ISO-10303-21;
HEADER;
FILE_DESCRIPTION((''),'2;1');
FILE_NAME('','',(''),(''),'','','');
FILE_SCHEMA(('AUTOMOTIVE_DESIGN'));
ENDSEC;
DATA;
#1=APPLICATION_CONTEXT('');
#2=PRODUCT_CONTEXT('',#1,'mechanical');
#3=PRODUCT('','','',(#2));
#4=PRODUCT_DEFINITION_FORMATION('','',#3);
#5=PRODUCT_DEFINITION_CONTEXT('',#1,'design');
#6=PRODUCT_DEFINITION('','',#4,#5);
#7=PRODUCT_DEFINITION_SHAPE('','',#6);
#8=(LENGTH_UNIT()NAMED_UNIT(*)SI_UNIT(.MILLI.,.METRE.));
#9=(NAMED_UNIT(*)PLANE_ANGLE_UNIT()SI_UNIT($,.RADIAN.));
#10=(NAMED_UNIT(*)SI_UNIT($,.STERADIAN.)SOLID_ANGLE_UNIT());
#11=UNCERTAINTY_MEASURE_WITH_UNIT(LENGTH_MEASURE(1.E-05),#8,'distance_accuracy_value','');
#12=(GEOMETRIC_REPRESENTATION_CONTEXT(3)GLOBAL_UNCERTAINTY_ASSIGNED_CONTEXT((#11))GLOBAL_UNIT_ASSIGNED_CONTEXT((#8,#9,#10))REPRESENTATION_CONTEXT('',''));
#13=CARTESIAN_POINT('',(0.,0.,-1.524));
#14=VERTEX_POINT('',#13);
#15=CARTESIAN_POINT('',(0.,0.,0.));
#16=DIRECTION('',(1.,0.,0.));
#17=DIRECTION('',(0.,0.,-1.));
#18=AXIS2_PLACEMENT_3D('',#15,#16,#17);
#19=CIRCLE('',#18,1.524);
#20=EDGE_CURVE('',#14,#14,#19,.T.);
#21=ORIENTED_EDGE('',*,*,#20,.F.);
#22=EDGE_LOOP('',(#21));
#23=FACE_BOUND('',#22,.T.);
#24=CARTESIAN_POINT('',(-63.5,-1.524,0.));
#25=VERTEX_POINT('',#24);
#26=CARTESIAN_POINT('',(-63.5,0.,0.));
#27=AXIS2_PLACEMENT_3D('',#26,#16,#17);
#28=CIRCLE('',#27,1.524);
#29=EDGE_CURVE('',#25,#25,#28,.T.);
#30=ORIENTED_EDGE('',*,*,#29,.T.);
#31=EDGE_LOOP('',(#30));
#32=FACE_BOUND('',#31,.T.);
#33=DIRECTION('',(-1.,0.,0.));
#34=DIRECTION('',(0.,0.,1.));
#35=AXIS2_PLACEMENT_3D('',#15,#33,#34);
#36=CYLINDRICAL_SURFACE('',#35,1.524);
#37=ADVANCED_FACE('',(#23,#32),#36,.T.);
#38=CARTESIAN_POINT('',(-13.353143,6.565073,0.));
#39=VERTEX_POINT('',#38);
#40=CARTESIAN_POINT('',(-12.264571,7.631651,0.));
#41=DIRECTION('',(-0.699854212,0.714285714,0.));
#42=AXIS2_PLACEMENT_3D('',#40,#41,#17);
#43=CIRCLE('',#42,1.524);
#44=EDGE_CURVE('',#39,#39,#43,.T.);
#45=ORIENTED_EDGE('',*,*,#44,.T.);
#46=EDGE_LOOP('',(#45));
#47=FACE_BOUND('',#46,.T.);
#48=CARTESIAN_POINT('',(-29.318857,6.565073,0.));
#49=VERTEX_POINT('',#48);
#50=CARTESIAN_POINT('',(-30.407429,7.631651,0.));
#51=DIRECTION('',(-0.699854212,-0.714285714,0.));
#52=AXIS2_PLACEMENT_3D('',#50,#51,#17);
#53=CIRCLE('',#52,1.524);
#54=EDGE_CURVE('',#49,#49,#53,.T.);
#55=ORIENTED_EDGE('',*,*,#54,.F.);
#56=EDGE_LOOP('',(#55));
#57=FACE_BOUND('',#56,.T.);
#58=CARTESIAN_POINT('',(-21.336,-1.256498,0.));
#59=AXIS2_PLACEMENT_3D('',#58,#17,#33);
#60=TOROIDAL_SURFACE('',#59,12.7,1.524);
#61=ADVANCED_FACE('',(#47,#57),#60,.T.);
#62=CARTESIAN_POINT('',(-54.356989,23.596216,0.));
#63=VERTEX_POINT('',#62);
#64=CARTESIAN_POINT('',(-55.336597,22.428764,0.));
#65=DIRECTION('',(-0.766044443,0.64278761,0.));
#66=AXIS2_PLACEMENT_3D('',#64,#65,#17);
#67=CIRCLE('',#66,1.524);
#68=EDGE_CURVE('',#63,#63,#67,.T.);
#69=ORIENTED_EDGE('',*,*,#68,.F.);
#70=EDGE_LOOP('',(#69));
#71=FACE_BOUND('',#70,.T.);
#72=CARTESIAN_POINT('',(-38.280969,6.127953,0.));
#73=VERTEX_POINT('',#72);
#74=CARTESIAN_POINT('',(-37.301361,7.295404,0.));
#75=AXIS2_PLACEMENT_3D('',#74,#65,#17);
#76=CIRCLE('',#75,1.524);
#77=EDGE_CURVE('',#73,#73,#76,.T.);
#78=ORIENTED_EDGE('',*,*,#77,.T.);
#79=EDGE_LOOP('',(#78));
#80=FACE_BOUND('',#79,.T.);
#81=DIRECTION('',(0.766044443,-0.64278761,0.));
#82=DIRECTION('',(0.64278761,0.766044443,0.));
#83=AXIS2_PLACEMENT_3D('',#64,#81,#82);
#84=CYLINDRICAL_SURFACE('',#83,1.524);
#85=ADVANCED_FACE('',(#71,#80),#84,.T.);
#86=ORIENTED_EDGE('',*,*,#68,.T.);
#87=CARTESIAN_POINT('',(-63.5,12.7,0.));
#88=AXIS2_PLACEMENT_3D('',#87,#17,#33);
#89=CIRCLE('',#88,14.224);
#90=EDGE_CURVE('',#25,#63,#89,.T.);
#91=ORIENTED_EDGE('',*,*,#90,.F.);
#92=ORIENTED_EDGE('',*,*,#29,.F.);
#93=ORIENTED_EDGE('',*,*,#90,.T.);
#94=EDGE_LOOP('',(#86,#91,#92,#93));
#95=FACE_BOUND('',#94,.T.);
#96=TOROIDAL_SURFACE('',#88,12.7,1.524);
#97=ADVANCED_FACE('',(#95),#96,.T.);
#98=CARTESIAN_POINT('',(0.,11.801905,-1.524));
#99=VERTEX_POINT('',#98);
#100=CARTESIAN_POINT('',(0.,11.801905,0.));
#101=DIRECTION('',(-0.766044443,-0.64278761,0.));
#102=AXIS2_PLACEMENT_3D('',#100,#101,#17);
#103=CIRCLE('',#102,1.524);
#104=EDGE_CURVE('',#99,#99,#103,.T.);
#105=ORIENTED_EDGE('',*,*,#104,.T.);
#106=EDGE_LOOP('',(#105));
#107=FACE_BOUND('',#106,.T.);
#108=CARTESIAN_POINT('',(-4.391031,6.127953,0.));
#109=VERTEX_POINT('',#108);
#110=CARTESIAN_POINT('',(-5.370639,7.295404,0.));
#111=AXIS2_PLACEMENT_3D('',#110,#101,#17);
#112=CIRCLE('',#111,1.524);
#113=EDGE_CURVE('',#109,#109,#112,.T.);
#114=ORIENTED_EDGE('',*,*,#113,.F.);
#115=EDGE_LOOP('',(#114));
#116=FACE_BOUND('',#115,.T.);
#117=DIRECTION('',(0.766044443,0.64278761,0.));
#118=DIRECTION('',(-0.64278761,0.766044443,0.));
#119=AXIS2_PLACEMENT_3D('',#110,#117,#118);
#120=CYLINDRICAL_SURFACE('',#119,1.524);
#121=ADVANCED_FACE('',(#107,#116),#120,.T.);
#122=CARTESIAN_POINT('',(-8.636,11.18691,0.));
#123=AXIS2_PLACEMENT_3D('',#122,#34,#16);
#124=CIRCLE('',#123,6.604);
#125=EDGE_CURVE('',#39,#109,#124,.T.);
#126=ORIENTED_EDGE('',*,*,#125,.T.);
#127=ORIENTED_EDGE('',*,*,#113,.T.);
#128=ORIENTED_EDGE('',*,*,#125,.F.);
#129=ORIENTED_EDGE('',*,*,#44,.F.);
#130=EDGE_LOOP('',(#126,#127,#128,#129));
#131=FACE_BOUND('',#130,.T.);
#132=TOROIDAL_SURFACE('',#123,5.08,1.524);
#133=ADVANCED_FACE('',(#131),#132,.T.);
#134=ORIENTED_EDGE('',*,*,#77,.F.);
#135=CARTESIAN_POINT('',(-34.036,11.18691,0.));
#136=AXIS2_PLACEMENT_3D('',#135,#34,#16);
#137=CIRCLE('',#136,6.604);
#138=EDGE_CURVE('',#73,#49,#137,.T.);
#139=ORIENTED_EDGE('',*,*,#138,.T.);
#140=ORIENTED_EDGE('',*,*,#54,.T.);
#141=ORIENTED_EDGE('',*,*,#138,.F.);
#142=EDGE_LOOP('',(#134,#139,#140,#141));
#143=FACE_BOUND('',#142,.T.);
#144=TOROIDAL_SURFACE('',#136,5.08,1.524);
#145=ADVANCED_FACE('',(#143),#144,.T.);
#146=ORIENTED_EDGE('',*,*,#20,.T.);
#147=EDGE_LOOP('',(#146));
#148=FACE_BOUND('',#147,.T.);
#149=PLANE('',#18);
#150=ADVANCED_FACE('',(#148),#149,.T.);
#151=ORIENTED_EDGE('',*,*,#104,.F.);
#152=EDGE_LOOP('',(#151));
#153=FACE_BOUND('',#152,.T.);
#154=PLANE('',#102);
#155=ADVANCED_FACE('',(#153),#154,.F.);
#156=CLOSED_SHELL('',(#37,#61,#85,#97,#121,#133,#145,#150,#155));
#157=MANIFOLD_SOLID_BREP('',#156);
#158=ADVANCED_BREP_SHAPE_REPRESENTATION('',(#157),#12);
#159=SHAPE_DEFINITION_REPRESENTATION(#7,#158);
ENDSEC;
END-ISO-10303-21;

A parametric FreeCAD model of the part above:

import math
import FreeCAD as App
import Part
import Sketcher
from FreeCAD import Vector
Q = App.Units.Quantity

doc = App.newDocument("Part")
body = doc.addObject("PartDesign::Body", "Body")

sketch1 = doc.addObject("Sketcher::SketchObject", "Sketch")
body.addObject(sketch1)
sketch1.AttachmentSupport = (doc.YZ_Plane, [""])
sketch1.MapMode = "FlatFace"
sketch1.addGeometry(Part.Circle(Vector(0, 0, 0), Vector(0, 0, 1), 1.524), False)
sketch1.addConstraint(Sketcher.Constraint("Coincident", 0, 3, -1, 1))
sketch1.addConstraint(Sketcher.Constraint("Diameter", 0, Q("0.12 in")))

sketch2 = doc.addObject("Sketcher::SketchObject", "Sketch001")
body.addObject(sketch2)
sketch2.AttachmentSupport = (doc.XY_Plane, [""])
sketch2.MapMode = "FlatFace"
sketch2.addGeometry(Part.LineSegment(Vector(0, 0, 0), Vector(-63.5, 0, 0)), False)
sketch2.addGeometry(Part.ArcOfCircle(Part.Circle(Vector(-63.5, 12.7, 0), Vector(0, 0, 1), 12.7), math.radians(50), math.radians(270)), False)
sketch2.addGeometry(Part.LineSegment(Vector(-55.336597, 22.428764, 0), Vector(-37.301361, 7.295404, 0)), False)
sketch2.addGeometry(Part.ArcOfCircle(Part.Circle(Vector(-34.036, 11.18691, 0), Vector(0, 0, 1), 5.08), math.radians(-130), math.radians(-44.415309)), False)
sketch2.addGeometry(Part.ArcOfCircle(Part.Circle(Vector(-21.336, -1.256498, 0), Vector(0, 0, 1), 12.7), math.radians(44.415309), math.radians(135.584691)), False)
sketch2.addGeometry(Part.ArcOfCircle(Part.Circle(Vector(-8.636, 11.18691, 0), Vector(0, 0, 1), 5.08), math.radians(-135.584691), math.radians(-50)), False)
sketch2.addGeometry(Part.LineSegment(Vector(-5.370639, 7.295404, 0), Vector(0, 11.801905, 0)), False)
sketch2.addConstraint(Sketcher.Constraint("Tangent", 0, 2, 1, 2))
sketch2.addConstraint(Sketcher.Constraint("Tangent", 1, 1, 2, 1))
sketch2.addConstraint(Sketcher.Constraint("Tangent", 2, 2, 3, 1))
sketch2.addConstraint(Sketcher.Constraint("Tangent", 3, 2, 4, 2))
sketch2.addConstraint(Sketcher.Constraint("Tangent", 4, 1, 5, 1))
sketch2.addConstraint(Sketcher.Constraint("Tangent", 5, 2, 6, 1))
sketch2.addConstraint(Sketcher.Constraint("Horizontal", 0))
sketch2.addConstraint(Sketcher.Constraint("Coincident", 0, 1, -1, 1))
sketch2.addConstraint(Sketcher.Constraint("Equal", 1, 4))
sketch2.addConstraint(Sketcher.Constraint("Equal", 3, 5))
sketch2.addConstraint(Sketcher.Constraint("PointOnObject", 6, 2, -2))
sketch2.addConstraint(Sketcher.Constraint("Horizontal", 3, 3, 5, 3))
sketch2.addConstraint(Sketcher.Constraint("Horizontal", 2, 2, 5, 2))
sketch2.addConstraint(Sketcher.Constraint("Radius", 1, Q("0.5 in")))
sketch2.addConstraint(Sketcher.Constraint("Radius", 3, Q("0.2 in")))
sketch2.addConstraint(Sketcher.Constraint("DistanceX", 0, 2, 0, 1, Q("2.5 in")))
sketch2.addConstraint(Sketcher.Constraint("Angle", 2, Q("-40 deg")))
sketch2.addConstraint(Sketcher.Constraint("DistanceX", 3, 3, 5, 3, Q("1 in")))
sketch2.addConstraint(Sketcher.Constraint("DistanceX", 3, 3, -1, 1, Q("1.34 in")))
doc.recompute()

additivepipe = doc.addObject("PartDesign::AdditivePipe", "AdditivePipe")
body.addObject(additivepipe)
additivepipe.Profile = sketch1
additivepipe.Spine = (sketch2, ["Edge1", "Edge2", "Edge3", "Edge4", "Edge5", "Edge6", "Edge7"])

doc.recompute()
